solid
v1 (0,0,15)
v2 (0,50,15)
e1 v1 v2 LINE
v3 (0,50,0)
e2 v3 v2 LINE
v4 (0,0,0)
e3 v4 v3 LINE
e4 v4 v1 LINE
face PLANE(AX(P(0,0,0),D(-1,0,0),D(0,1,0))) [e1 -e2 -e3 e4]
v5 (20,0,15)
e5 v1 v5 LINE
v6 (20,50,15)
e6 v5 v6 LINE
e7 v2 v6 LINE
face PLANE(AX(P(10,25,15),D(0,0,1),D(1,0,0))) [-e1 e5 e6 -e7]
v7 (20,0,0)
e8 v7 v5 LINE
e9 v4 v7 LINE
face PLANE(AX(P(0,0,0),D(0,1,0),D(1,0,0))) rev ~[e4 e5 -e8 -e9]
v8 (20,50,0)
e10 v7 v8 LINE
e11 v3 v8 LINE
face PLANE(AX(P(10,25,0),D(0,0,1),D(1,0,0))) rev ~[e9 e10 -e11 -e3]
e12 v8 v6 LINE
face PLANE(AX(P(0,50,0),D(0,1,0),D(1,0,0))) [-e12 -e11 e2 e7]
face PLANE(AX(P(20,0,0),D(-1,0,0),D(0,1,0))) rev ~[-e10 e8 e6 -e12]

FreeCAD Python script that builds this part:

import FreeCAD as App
import Part
import Sketcher
from FreeCAD import Vector
Q = App.Units.Quantity


def add_polygon(sketch, points):
    """Adds a closed chain of lines whose ends are joined by coincident constraints."""
    first, n = sketch.GeometryCount, len(points)
    for a, b in zip(points, points[1:] + points[:1]):
        sketch.addGeometry(Part.LineSegment(App.Vector(*a, 0), App.Vector(*b, 0)), False)
    for i in range(n):
        sketch.addConstraint(Sketcher.Constraint("Coincident", first + i, 2, first + (i + 1) % n, 1))

doc = App.newDocument("Part")
body = doc.addObject("PartDesign::Body", "Body")

sketch1 = body.newObject("Sketcher::SketchObject", "Sketch")
sketch1.AttachmentSupport = (doc.getObject("XY_Plane"), [""])
sketch1.MapMode = "FlatFace"
add_polygon(sketch1, [(0, 50), (0, 0), (20, 0), (20, 50)])
sketch1.addConstraint(Sketcher.Constraint("Vertical", 0))
sketch1.addConstraint(Sketcher.Constraint("Horizontal", 1))
sketch1.addConstraint(Sketcher.Constraint("Vertical", 2))
sketch1.addConstraint(Sketcher.Constraint("Horizontal", 3))
sketch1.addConstraint(Sketcher.Constraint("Coincident", 0, 2, -1, 1))
sketch1.addConstraint(Sketcher.Constraint("DistanceX", 1, 1, 1, 2, Q("20 mm")))
sketch1.addConstraint(Sketcher.Constraint("DistanceY", 0, 2, 0, 1, Q("50 mm")))
pad1 = body.newObject("PartDesign::Pad", "Pad")
pad1.Profile = sketch1
pad1.Length = 15

doc.recompute()
